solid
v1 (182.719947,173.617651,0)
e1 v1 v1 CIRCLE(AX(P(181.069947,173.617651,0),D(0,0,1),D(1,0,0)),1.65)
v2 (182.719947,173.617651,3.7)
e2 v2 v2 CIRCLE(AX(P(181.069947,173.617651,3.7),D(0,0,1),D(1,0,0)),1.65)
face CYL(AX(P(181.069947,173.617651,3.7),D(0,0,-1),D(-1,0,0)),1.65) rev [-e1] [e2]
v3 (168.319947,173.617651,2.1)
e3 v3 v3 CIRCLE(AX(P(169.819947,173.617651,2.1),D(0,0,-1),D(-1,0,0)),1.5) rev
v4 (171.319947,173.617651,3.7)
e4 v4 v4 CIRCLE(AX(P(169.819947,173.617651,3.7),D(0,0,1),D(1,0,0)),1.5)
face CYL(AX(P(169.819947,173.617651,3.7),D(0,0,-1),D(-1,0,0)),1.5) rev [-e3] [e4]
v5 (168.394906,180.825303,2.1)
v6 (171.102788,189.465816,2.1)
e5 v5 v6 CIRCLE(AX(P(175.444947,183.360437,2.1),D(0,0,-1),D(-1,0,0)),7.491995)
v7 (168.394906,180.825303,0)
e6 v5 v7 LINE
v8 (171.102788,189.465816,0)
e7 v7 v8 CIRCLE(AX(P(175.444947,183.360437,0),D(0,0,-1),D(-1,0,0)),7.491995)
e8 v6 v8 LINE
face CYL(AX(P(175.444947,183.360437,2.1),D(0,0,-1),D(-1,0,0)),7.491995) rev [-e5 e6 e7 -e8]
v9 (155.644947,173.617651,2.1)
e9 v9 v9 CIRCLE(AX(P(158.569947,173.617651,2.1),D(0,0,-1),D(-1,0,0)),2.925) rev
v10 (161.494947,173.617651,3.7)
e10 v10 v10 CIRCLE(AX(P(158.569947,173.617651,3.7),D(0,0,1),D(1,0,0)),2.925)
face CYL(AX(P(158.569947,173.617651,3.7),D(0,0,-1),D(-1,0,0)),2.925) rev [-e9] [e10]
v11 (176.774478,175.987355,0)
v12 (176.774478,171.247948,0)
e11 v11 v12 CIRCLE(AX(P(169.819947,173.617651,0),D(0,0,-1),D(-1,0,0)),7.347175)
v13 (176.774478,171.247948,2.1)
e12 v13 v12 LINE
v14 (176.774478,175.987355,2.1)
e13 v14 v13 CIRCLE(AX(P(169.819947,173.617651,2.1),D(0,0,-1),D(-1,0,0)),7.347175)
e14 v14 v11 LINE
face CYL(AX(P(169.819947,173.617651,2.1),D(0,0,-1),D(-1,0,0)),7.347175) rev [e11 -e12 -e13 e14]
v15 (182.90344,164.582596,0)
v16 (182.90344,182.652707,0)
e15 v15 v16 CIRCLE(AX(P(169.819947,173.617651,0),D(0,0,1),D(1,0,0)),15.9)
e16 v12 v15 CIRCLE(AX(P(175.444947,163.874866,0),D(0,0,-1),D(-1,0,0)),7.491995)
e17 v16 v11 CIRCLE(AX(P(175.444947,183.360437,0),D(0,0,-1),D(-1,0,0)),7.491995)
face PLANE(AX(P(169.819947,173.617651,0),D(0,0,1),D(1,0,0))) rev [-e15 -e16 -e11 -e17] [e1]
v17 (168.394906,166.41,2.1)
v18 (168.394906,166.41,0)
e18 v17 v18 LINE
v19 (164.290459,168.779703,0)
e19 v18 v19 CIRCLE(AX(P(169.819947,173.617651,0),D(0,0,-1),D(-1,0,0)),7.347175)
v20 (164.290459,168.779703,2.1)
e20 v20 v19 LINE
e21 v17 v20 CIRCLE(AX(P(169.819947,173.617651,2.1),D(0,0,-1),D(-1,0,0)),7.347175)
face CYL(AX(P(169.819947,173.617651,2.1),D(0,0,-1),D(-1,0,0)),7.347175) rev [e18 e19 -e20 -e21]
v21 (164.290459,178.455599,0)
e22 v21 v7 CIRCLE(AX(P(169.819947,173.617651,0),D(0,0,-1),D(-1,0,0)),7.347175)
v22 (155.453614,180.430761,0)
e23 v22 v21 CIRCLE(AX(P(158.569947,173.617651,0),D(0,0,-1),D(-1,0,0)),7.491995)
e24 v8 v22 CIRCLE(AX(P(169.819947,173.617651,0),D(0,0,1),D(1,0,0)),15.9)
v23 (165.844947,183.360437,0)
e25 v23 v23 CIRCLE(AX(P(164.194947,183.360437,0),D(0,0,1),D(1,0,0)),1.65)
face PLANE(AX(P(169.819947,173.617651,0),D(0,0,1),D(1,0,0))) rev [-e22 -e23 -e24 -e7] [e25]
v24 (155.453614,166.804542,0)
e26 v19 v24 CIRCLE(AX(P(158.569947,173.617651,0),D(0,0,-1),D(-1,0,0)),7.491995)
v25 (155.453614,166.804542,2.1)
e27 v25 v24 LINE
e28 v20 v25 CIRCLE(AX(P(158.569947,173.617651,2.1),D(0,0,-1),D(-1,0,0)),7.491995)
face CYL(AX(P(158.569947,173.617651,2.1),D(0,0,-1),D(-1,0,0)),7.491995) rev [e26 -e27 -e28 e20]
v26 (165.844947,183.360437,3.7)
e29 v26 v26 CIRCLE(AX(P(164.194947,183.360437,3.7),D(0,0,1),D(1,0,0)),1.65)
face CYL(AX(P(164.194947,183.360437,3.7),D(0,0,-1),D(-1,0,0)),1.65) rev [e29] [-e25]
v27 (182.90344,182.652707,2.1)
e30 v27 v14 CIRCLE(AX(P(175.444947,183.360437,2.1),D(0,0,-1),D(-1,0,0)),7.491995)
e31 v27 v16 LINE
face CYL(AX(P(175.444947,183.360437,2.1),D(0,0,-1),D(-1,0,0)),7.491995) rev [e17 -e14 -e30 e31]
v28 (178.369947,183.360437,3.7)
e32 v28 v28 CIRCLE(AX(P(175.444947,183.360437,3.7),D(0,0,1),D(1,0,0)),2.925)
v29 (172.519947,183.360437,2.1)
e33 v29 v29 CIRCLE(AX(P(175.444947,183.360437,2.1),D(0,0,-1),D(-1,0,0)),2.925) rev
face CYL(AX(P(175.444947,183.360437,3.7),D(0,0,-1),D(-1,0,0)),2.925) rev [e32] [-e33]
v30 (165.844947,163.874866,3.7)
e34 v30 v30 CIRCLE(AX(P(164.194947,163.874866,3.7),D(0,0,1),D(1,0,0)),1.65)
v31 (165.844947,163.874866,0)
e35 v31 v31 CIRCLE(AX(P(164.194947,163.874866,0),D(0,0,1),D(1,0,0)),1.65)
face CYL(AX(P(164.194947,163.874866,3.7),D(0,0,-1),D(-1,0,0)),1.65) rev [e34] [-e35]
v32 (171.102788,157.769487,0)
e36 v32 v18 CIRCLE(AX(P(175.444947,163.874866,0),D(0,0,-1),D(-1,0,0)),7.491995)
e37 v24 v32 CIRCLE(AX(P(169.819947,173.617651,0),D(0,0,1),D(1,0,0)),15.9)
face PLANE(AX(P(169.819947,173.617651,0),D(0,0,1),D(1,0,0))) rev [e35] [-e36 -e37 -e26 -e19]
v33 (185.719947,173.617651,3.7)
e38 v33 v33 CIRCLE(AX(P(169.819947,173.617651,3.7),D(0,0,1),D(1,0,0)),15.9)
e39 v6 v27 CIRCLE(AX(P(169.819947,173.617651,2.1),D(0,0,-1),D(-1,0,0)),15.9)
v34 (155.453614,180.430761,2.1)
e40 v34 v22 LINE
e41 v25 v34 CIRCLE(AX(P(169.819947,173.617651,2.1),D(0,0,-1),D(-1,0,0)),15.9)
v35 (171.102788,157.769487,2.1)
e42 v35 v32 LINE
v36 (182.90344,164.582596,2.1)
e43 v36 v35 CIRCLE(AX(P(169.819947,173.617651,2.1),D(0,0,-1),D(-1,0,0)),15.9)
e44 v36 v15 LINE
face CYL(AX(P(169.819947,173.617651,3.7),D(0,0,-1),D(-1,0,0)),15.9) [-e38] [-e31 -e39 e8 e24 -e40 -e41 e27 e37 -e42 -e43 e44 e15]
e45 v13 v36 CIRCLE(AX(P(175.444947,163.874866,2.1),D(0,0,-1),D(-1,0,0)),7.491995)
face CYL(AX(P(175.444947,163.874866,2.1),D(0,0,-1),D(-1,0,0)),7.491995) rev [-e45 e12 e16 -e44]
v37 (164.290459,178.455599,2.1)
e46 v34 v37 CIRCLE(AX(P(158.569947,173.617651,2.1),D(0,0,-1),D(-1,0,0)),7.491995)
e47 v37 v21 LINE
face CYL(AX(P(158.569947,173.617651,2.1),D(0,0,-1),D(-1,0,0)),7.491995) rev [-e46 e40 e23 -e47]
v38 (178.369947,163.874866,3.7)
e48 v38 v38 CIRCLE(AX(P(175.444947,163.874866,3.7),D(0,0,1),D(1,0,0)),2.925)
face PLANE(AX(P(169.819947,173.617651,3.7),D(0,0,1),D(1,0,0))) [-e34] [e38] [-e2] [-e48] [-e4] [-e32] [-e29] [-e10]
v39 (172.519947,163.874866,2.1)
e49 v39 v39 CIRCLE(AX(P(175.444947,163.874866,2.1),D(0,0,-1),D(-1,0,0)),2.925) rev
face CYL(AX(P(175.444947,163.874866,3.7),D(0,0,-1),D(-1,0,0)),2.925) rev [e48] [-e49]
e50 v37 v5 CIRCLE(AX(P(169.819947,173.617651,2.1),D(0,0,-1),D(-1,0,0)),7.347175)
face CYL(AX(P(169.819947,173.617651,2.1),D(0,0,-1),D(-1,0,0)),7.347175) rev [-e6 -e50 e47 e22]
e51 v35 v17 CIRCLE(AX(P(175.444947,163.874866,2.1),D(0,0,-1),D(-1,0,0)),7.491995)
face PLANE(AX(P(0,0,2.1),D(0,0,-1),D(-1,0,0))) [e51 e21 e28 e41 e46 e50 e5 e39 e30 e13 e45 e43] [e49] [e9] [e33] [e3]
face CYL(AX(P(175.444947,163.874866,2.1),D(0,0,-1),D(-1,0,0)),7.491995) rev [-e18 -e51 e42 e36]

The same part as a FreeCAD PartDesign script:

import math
import FreeCAD as App
import Part
import Sketcher
from FreeCAD import Vector

doc = App.newDocument("Part")
params = doc.addObject("Spreadsheet::Sheet", "Params")
for row, (alias, value) in enumerate([
    ("sketch1_diameter", "3 mm"),
    ("sketch1_diameter2", "31.8 mm"),
    ("sketch1_diameter3", "3.3 mm"),
    ("sketch1_diameter4", "5.85 mm"),
    ("pad1_length", "3.7 mm"),
    ("pocket1_length", "2.1 mm"),
], start=1):
    params.set(f"A{row}", alias)
    params.set(f"B{row}", "=" + value)
    params.setAlias(f"B{row}", alias)

body = doc.addObject("PartDesign::Body", "Body")

sketch1 = body.newObject("Sketcher::SketchObject", "Sketch")
sketch1.AttachmentSupport = (doc.getObject("XY_Plane"), [""])
sketch1.MapMode = "FlatFace"
sketch1.addGeometry(Part.Circle(Vector(169.8, 173.6, 0), Vector(0, 0, 1), 15.9), False)
sketch1.addGeometry(Part.Circle(Vector(164.2, 163.9, 0), Vector(0, 0, 1), 1.6), False)
sketch1.addGeometry(Part.Circle(Vector(175.4, 163.9, 0), Vector(0, 0, 1), 2.9), False)
sketch1.addGeometry(Part.Circle(Vector(158.6, 173.6, 0), Vector(0, 0, 1), 2.9), False)
sketch1.addGeometry(Part.Circle(Vector(164.2, 183.4, 0), Vector(0, 0, 1), 1.6), False)
sketch1.addGeometry(Part.Circle(Vector(169.8, 173.6, 0), Vector(0, 0, 1), 1.5), False)
sketch1.addGeometry(Part.Circle(Vector(181.1, 173.6, 0), Vector(0, 0, 1), 1.6), False)
sketch1.addGeometry(Part.Circle(Vector(175.4, 183.4, 0), Vector(0, 0, 1), 2.9), False)
sketch1.addConstraint(Sketcher.Constraint("Coincident", 5, 3, 0, 3))
sketch1.addConstraint(Sketcher.Constraint("Equal", 2, 3))
sketch1.addConstraint(Sketcher.Constraint("Equal", 1, 4))
sketch1.addConstraint(Sketcher.Constraint("Equal", 4, 6))
sketch1.addConstraint(Sketcher.Constraint("Equal", 3, 7))
sketch1.addConstraint(Sketcher.Constraint("Horizontal", 1, 3, 2, 3))
sketch1.addConstraint(Sketcher.Constraint("Horizontal", 0, 3, 3, 3))
sketch1.addConstraint(Sketcher.Constraint("Horizontal", 5, 3, 6, 3))
sketch1.addConstraint(Sketcher.Constraint("Horizontal", 4, 3, 7, 3))
sketch1.addConstraint(Sketcher.Constraint("Vertical", 1, 3, 4, 3))
sketch1.addConstraint(Sketcher.Constraint("Vertical", 2, 3, 7, 3))
sketch1.addConstraint(Sketcher.Constraint("Diameter", 5, 3.0))
sketch1.addConstraint(Sketcher.Constraint("Diameter", 0, 31.8))
sketch1.addConstraint(Sketcher.Constraint("Diameter", 1, 3.3))
sketch1.addConstraint(Sketcher.Constraint("Diameter", 2, 5.85))
sketch1.addConstraint(Sketcher.Constraint("DistanceX", 1, 3, 2, 3, 11.25))
sketch1.addConstraint(Sketcher.Constraint("DistanceX", 3, 3, 0, 3, 11.25))
sketch1.addConstraint(Sketcher.Constraint("DistanceX", 0, 3, 6, 3, 11.25))
sketch1.addConstraint(Sketcher.Constraint("DistanceX", 1, 3, 0, 3, 5.625))
sketch1.addConstraint(Sketcher.Constraint("DistanceY", -1, 1, 0, 3, 173.617651))
sketch1.addConstraint(Sketcher.Constraint("DistanceY", 1, 3, 4, 3, 19.485572))
sketch1.addConstraint(Sketcher.Constraint("DistanceX", -1, 1, 0, 3, 169.819947))
sketch1.addConstraint(Sketcher.Constraint("DistanceY", -1, 1, 1, 3, 163.874866))
sketch1.setExpression("Constraints[11]", "Params.sketch1_diameter")
sketch1.setExpression("Constraints[12]", "Params.sketch1_diameter2")
sketch1.setExpression("Constraints[13]", "Params.sketch1_diameter3")
sketch1.setExpression("Constraints[14]", "Params.sketch1_diameter4")
pad1 = body.newObject("PartDesign::Pad", "Pad")
pad1.Profile = sketch1
pad1.setExpression("Length", "Params.pad1_length")

sketch2 = body.newObject("Sketcher::SketchObject", "Sketch001")
sketch2.AttachmentSupport = (doc.getObject("XY_Plane"), [""])
sketch2.MapMode = "FlatFace"
sketch2.addGeometry(Part.ArcOfCircle(Part.Circle(Vector(175.4, 163.9, 0), Vector(0, 0, 1), 7.5), math.radians(160), math.radians(440)), False)
sketch2.addGeometry(Part.ArcOfCircle(Part.Circle(Vector(169.8, 173.6, 0), Vector(0, 0, 1), 7.3), math.radians(-139), math.radians(-101)), False)
sketch2.addGeometry(Part.ArcOfCircle(Part.Circle(Vector(158.6, 173.6, 0), Vector(0, 0, 1), 7.5), math.radians(40), math.radians(320)), False)
sketch2.addGeometry(Part.ArcOfCircle(Part.Circle(Vector(169.8, 173.6, 0), Vector(0, 0, 1), 7.3), math.radians(101), math.radians(139)), False)
sketch2.addGeometry(Part.ArcOfCircle(Part.Circle(Vector(175.4, 183.4, 0), Vector(0, 0, 1), 7.5), math.radians(-80), math.radians(200)), False)
sketch2.addGeometry(Part.ArcOfCircle(Part.Circle(Vector(169.8, 173.6, 0), Vector(0, 0, 1), 7.3), math.radians(-19), math.radians(19)), False)
sketch2.addConstraint(Sketcher.Constraint("Coincident", 0, 1, 1, 2))
sketch2.addConstraint(Sketcher.Constraint("Coincident", 1, 1, 2, 2))
sketch2.addConstraint(Sketcher.Constraint("Coincident", 2, 1, 3, 2))
sketch2.addConstraint(Sketcher.Constraint("Coincident", 3, 1, 4, 2))
sketch2.addConstraint(Sketcher.Constraint("Coincident", 4, 1, 5, 2))
sketch2.addConstraint(Sketcher.Constraint("Coincident", 5, 1, 0, 2))
sketch2.addConstraint(Sketcher.Constraint("Coincident", 3, 3, 1, 3))
sketch2.addConstraint(Sketcher.Constraint("Coincident", 5, 3, 1, 3))
sketch2.addConstraint(Sketcher.Constraint("Equal", 0, 2))
sketch2.addConstraint(Sketcher.Constraint("Equal", 1, 3))
sketch2.addConstraint(Sketcher.Constraint("Equal", 2, 4))
sketch2.addConstraint(Sketcher.Constraint("Equal", 3, 5))
sketch2.addConstraint(Sketcher.Constraint("Horizontal", 1, 3, 2, 3))
sketch2.addConstraint(Sketcher.Constraint("Vertical", 0, 3, 4, 3))
sketch2.addConstraint(Sketcher.Constraint("Vertical", 0, 1, 3, 1))
sketch2.addConstraint(Sketcher.Constraint("DistanceY", -1, 1, 0, 1, 166.41))
sketch2.addConstraint(Sketcher.Constraint("DistanceX", 2, 3, 1, 3, 11.25))
sketch2.addConstraint(Sketcher.Constraint("Radius", 0, 7.491995))
sketch2.addConstraint(Sketcher.Constraint("Radius", 1, 7.347175))
sketch2.addConstraint(Sketcher.Constraint("DistanceX", 1, 3, 0, 3, 5.625))
sketch2.addConstraint(Sketcher.Constraint("DistanceY", -1, 1, 2, 1, 178.455599))
sketch2.addConstraint(Sketcher.Constraint("DistanceX", -1, 1, 1, 1, 164.290459))
pocket1 = body.newObject("PartDesign::Pocket", "Pocket")
pocket1.Profile = sketch2
pocket1.setExpression("Length", "Params.pocket1_length")
pocket1.Reversed = True

doc.recompute()
